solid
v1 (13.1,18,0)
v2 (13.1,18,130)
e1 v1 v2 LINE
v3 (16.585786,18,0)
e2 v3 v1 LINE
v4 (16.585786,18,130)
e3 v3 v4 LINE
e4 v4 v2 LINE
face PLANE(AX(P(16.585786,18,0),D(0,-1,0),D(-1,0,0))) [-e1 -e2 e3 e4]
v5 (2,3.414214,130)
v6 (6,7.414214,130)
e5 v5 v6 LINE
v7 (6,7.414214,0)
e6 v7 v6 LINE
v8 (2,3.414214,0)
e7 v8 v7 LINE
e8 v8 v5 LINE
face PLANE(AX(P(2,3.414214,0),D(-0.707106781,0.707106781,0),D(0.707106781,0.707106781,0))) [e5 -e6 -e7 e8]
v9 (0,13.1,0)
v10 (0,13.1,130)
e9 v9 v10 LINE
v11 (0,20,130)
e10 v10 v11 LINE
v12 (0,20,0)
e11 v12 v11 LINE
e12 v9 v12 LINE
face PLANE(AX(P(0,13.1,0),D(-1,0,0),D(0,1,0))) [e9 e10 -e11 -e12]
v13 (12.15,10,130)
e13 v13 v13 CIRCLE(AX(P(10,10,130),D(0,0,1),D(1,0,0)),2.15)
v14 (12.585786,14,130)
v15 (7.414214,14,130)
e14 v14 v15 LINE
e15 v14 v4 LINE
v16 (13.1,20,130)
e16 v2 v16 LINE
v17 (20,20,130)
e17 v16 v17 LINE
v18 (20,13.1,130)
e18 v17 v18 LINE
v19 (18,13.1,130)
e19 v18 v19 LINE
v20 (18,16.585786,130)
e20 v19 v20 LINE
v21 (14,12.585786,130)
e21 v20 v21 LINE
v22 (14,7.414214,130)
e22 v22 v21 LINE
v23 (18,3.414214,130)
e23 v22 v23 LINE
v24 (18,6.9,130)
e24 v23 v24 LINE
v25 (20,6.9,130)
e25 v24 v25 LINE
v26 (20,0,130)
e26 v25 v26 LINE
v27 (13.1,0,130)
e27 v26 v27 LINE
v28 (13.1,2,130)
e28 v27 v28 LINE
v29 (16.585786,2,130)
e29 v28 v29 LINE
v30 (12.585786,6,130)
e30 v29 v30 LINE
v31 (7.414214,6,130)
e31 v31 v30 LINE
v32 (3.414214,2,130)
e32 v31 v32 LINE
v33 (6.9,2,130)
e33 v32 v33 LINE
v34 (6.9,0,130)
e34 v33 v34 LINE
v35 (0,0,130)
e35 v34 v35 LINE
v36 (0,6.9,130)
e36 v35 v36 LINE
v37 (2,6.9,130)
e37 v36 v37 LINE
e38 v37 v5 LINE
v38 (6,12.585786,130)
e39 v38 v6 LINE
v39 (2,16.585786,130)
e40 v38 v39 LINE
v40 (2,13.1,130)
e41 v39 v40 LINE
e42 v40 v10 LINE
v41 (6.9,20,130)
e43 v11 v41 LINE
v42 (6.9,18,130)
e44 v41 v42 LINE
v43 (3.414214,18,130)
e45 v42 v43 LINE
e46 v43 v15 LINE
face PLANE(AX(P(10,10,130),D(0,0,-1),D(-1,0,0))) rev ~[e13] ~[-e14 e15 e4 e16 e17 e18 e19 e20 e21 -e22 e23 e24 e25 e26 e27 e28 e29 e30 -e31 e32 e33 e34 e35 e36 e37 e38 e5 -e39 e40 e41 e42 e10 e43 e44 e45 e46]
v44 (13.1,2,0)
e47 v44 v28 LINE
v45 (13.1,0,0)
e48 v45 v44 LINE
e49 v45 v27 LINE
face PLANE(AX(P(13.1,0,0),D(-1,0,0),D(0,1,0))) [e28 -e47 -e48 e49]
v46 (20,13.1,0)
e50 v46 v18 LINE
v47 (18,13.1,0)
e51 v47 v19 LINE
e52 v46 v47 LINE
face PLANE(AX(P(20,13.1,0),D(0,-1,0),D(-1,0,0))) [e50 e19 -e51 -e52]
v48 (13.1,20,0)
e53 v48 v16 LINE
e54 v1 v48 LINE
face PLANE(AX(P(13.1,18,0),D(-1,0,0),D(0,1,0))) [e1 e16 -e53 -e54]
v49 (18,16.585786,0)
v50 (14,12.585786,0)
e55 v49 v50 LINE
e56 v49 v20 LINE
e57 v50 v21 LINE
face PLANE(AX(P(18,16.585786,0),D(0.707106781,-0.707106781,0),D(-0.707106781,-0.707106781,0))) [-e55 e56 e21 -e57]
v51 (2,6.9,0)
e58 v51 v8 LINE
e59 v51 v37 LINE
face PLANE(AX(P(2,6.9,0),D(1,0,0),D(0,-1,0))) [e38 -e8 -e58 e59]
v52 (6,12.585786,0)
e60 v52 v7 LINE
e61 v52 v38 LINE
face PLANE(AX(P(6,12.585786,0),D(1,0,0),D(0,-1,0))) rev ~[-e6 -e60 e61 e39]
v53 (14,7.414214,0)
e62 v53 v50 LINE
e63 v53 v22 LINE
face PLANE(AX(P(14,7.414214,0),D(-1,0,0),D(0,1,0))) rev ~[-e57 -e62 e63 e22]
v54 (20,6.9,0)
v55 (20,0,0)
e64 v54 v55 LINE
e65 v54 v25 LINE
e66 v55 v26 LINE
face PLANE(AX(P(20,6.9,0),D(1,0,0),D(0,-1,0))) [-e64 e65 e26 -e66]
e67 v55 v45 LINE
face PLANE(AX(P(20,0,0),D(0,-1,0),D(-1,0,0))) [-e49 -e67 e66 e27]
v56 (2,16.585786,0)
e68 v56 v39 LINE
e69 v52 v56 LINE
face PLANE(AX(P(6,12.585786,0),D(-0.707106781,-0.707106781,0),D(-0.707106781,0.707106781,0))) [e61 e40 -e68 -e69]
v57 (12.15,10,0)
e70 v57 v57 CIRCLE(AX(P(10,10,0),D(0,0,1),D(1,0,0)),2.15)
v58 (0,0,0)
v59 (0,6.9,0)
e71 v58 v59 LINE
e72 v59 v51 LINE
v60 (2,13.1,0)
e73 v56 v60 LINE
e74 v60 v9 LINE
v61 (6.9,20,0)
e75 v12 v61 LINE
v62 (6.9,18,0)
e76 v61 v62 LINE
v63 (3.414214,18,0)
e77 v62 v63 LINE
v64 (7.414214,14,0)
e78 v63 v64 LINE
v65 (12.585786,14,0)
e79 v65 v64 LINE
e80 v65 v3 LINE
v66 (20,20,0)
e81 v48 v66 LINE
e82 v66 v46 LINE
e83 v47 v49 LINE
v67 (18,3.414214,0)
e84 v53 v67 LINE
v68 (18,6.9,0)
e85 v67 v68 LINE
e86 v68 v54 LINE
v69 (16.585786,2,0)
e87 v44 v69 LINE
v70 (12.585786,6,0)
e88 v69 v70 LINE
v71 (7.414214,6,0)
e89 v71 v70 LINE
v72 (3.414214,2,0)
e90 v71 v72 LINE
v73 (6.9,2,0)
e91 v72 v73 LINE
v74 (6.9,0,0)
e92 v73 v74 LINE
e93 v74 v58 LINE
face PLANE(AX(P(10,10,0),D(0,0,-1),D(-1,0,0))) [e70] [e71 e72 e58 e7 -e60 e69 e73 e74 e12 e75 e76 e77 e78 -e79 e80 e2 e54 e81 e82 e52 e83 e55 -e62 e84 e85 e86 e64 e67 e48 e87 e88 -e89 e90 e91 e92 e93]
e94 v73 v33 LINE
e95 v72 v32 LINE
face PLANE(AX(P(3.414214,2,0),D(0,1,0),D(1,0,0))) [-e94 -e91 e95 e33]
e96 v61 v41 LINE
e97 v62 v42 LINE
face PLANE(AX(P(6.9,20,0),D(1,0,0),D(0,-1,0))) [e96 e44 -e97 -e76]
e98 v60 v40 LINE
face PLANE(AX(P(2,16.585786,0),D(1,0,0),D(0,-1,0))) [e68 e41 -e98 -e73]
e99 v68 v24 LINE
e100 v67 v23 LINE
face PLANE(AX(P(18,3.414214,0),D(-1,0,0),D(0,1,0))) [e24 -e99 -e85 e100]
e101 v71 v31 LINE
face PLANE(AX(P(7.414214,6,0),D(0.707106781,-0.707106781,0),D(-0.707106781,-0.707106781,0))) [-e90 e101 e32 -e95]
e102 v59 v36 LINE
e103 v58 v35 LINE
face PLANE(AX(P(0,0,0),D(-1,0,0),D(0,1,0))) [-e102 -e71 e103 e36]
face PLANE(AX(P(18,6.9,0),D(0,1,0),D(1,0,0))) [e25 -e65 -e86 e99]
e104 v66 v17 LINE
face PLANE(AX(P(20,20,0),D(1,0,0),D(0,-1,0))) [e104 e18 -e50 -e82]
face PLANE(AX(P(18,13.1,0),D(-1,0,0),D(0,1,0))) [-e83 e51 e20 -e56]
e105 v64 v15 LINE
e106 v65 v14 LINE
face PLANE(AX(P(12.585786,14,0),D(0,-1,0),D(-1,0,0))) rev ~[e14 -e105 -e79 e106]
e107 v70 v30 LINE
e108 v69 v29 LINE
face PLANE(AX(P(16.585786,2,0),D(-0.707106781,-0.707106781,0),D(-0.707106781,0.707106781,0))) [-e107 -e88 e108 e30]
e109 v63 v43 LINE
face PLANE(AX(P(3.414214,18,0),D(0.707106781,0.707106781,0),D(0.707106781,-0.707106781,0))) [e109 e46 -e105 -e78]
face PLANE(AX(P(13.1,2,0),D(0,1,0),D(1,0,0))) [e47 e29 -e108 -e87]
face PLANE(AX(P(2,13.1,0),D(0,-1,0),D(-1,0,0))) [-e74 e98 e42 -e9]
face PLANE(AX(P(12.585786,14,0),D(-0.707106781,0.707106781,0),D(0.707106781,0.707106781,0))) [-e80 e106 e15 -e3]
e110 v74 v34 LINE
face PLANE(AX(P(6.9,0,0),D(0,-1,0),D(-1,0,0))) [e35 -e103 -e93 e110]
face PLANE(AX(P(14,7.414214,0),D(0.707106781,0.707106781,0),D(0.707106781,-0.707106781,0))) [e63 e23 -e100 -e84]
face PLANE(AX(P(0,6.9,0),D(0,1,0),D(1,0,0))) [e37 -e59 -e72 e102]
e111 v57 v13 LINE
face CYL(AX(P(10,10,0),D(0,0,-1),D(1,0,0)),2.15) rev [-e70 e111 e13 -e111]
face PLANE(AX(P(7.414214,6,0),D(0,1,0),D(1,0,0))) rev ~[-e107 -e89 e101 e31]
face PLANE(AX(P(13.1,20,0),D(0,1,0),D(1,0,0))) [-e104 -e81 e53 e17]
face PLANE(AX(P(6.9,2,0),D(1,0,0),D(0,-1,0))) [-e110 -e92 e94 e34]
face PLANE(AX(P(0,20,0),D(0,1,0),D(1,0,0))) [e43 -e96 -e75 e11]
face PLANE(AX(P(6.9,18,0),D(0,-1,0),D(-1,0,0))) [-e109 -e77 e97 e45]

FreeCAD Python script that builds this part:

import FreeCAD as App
import Part
import Sketcher
from FreeCAD import Vector
Q = App.Units.Quantity

doc = App.newDocument("Part")
body = doc.addObject("PartDesign::Body", "Body")

# Sketch on XY plane
sketch1 = doc.addObject("Sketcher::SketchObject", "Sketch")
body.addObject(sketch1)
sketch1.AttachmentSupport = (doc.XY_Plane, [""])
sketch1.MapMode = "FlatFace"
sketch1.addGeometry([
    Part.LineSegment(Vector(18, 13.1, 0), Vector(20, 13.1, 0)),  # 0
    Part.LineSegment(Vector(20, 13.1, 0), Vector(20, 20, 0)),  # 1
    Part.LineSegment(Vector(20, 20, 0), Vector(13.1, 20, 0)),  # 2
    Part.LineSegment(Vector(13.1, 20, 0), Vector(13.1, 18, 0)),  # 3
    Part.LineSegment(Vector(13.1, 18, 0), Vector(16.585786, 18, 0)),  # 4
    Part.LineSegment(Vector(16.585786, 18, 0), Vector(12.585786, 14, 0)),  # 5
    Part.LineSegment(Vector(12.585786, 14, 0), Vector(7.414214, 14, 0)),  # 6
    Part.LineSegment(Vector(7.414214, 14, 0), Vector(3.414214, 18, 0)),  # 7
    Part.LineSegment(Vector(3.414214, 18, 0), Vector(6.9, 18, 0)),  # 8
    Part.LineSegment(Vector(6.9, 18, 0), Vector(6.9, 20, 0)),  # 9
    Part.LineSegment(Vector(6.9, 20, 0), Vector(0, 20, 0)),  # 10
    Part.LineSegment(Vector(0, 20, 0), Vector(0, 13.1, 0)),  # 11
    Part.LineSegment(Vector(0, 13.1, 0), Vector(2, 13.1, 0)),  # 12
    Part.LineSegment(Vector(2, 13.1, 0), Vector(2, 16.585786, 0)),  # 13
    Part.LineSegment(Vector(2, 16.585786, 0), Vector(6, 12.585786, 0)),  # 14
    Part.LineSegment(Vector(6, 12.585786, 0), Vector(6, 7.414214, 0)),  # 15
    Part.LineSegment(Vector(6, 7.414214, 0), Vector(2, 3.414214, 0)),  # 16
    Part.LineSegment(Vector(2, 3.414214, 0), Vector(2, 6.9, 0)),  # 17
    Part.LineSegment(Vector(2, 6.9, 0), Vector(0, 6.9, 0)),  # 18
    Part.LineSegment(Vector(0, 6.9, 0), Vector(0, 0, 0)),  # 19
    Part.LineSegment(Vector(0, 0, 0), Vector(6.9, 0, 0)),  # 20
    Part.LineSegment(Vector(6.9, 0, 0), Vector(6.9, 2, 0)),  # 21
    Part.LineSegment(Vector(6.9, 2, 0), Vector(3.414214, 2, 0)),  # 22
    Part.LineSegment(Vector(3.414214, 2, 0), Vector(7.414214, 6, 0)),  # 23
    Part.LineSegment(Vector(7.414214, 6, 0), Vector(12.585786, 6, 0)),  # 24
    Part.LineSegment(Vector(12.585786, 6, 0), Vector(16.585786, 2, 0)),  # 25
    Part.LineSegment(Vector(16.585786, 2, 0), Vector(13.1, 2, 0)),  # 26
    Part.LineSegment(Vector(13.1, 2, 0), Vector(13.1, 0, 0)),  # 27
    Part.LineSegment(Vector(13.1, 0, 0), Vector(20, 0, 0)),  # 28
    Part.LineSegment(Vector(20, 0, 0), Vector(20, 6.9, 0)),  # 29
    Part.LineSegment(Vector(20, 6.9, 0), Vector(18, 6.9, 0)),  # 30
    Part.LineSegment(Vector(18, 6.9, 0), Vector(18, 3.414214, 0)),  # 31
    Part.LineSegment(Vector(18, 3.414214, 0), Vector(14, 7.414214, 0)),  # 32
    Part.LineSegment(Vector(14, 7.414214, 0), Vector(14, 12.585786, 0)),  # 33
    Part.LineSegment(Vector(14, 12.585786, 0), Vector(18, 16.585786, 0)),  # 34
    Part.LineSegment(Vector(18, 16.585786, 0), Vector(18, 13.1, 0)),  # 35
    Part.Circle(Vector(10, 10, 0), Vector(0, 0, 1), 2.15),  # 36
], False)
sketch1.addConstraint([
    Sketcher.Constraint("Coincident", 0, 2, 1, 1),
    Sketcher.Constraint("Coincident", 1, 2, 2, 1),
    Sketcher.Constraint("Coincident", 2, 2, 3, 1),
    Sketcher.Constraint("Coincident", 3, 2, 4, 1),
    Sketcher.Constraint("Coincident", 4, 2, 5, 1),
    Sketcher.Constraint("Coincident", 5, 2, 6, 1),
    Sketcher.Constraint("Coincident", 6, 2, 7, 1),
    Sketcher.Constraint("Coincident", 7, 2, 8, 1),
    Sketcher.Constraint("Coincident", 8, 2, 9, 1),
    Sketcher.Constraint("Coincident", 9, 2, 10, 1),
    Sketcher.Constraint("Coincident", 10, 2, 11, 1),
    Sketcher.Constraint("Coincident", 11, 2, 12, 1),
    Sketcher.Constraint("Coincident", 12, 2, 13, 1),
    Sketcher.Constraint("Coincident", 13, 2, 14, 1),
    Sketcher.Constraint("Coincident", 14, 2, 15, 1),
    Sketcher.Constraint("Coincident", 15, 2, 16, 1),
    Sketcher.Constraint("Coincident", 16, 2, 17, 1),
    Sketcher.Constraint("Coincident", 17, 2, 18, 1),
    Sketcher.Constraint("Coincident", 18, 2, 19, 1),
    Sketcher.Constraint("Coincident", 19, 2, 20, 1),
    Sketcher.Constraint("Coincident", 20, 2, 21, 1),
    Sketcher.Constraint("Coincident", 21, 2, 22, 1),
    Sketcher.Constraint("Coincident", 22, 2, 23, 1),
    Sketcher.Constraint("Coincident", 23, 2, 24, 1),
    Sketcher.Constraint("Coincident", 24, 2, 25, 1),
    Sketcher.Constraint("Coincident", 25, 2, 26, 1),
    Sketcher.Constraint("Coincident", 26, 2, 27, 1),
    Sketcher.Constraint("Coincident", 27, 2, 28, 1),
    Sketcher.Constraint("Coincident", 28, 2, 29, 1),
    Sketcher.Constraint("Coincident", 29, 2, 30, 1),
    Sketcher.Constraint("Coincident", 30, 2, 31, 1),
    Sketcher.Constraint("Coincident", 31, 2, 32, 1),
    Sketcher.Constraint("Coincident", 32, 2, 33, 1),
    Sketcher.Constraint("Coincident", 33, 2, 34, 1),
    Sketcher.Constraint("Coincident", 34, 2, 35, 1),
    Sketcher.Constraint("Coincident", 35, 2, 0, 1),
    Sketcher.Constraint("Horizontal", 0),
    Sketcher.Constraint("Vertical", 1),
    Sketcher.Constraint("Horizontal", 2),
    Sketcher.Constraint("Vertical", 3),
    Sketcher.Constraint("Horizontal", 4),
    Sketcher.Constraint("Horizontal", 6),
    Sketcher.Constraint("Horizontal", 8),
    Sketcher.Constraint("Vertical", 9),
    Sketcher.Constraint("Horizontal", 10),
    Sketcher.Constraint("Vertical", 11),
    Sketcher.Constraint("Horizontal", 12),
    Sketcher.Constraint("Vertical", 13),
    Sketcher.Constraint("Vertical", 15),
    Sketcher.Constraint("Vertical", 17),
    Sketcher.Constraint("Horizontal", 18),
    Sketcher.Constraint("Vertical", 19),
    Sketcher.Constraint("Horizontal", 20),
    Sketcher.Constraint("Vertical", 21),
    Sketcher.Constraint("Horizontal", 22),
    Sketcher.Constraint("Horizontal", 24),
    Sketcher.Constraint("Horizontal", 26),
    Sketcher.Constraint("Vertical", 27),
    Sketcher.Constraint("Horizontal", 28),
    Sketcher.Constraint("Vertical", 29),
    Sketcher.Constraint("Horizontal", 30),
    Sketcher.Constraint("Vertical", 31),
    Sketcher.Constraint("Vertical", 33),
    Sketcher.Constraint("Vertical", 35),
    Sketcher.Constraint("Coincident", 19, 2, -1, 1),
    Sketcher.Constraint("PointOnObject", 10, 2, -2),
    Sketcher.Constraint("PointOnObject", 27, 2, -1),
    Sketcher.Constraint("Perpendicular", 5, 7),
    Sketcher.Constraint("Parallel", 7, 14),
    Sketcher.Constraint("Perpendicular", 14, 16),
    Sketcher.Constraint("Parallel", 16, 23),
    Sketcher.Constraint("Perpendicular", 23, 25),
    Sketcher.Constraint("Parallel", 25, 32),
    Sketcher.Constraint("Perpendicular", 32, 34),
    Sketcher.Constraint("Horizontal", 4, 2, 7, 2),
    Sketcher.Constraint("Horizontal", 2, 2, 9, 2),
    Sketcher.Constraint("Horizontal", 0, 2, 11, 2),
    Sketcher.Constraint("Horizontal", 22, 2, 25, 2),
    Sketcher.Constraint("Horizontal", 18, 2, 29, 2),
    Sketcher.Constraint("Horizontal", 16, 2, 31, 2),
    Sketcher.Constraint("Horizontal", 15, 2, 32, 2),
    Sketcher.Constraint("Horizontal", 14, 2, 33, 2),
    Sketcher.Constraint("Horizontal", 13, 2, 34, 2),
    Sketcher.Constraint("Vertical", 13, 2, 16, 2),
    Sketcher.Constraint("Vertical", 9, 2, 20, 2),
    Sketcher.Constraint("Vertical", 7, 2, 22, 2),
    Sketcher.Constraint("Vertical", 6, 2, 23, 2),
    Sketcher.Constraint("Vertical", 5, 2, 24, 2),
    Sketcher.Constraint("Vertical", 4, 2, 25, 2),
    Sketcher.Constraint("Vertical", 3, 2, 26, 2),
    Sketcher.Constraint("Vertical", 1, 2, 28, 2),
    Sketcher.Constraint("Equal", 4, 8),
    Sketcher.Constraint("Equal", 2, 10),
    Sketcher.Constraint("Equal", 0, 12),
    Sketcher.Constraint("Equal", 28, 1),
    Sketcher.Constraint("Equal", 30, 3),
    Sketcher.Constraint("Equal", 26, 13),
    Sketcher.Constraint("Equal", 24, 15),
    Sketcher.Constraint("Equal", 13, 17),
    Sketcher.Constraint("Equal", 11, 19),
    Sketcher.Constraint("Equal", 9, 21),
    Sketcher.Constraint("Equal", 7, 14),
    Sketcher.Constraint("Diameter", 36, Q("4.3 mm")),
    Sketcher.Constraint("DistanceX", 0, 1, 0, 2, Q("2 mm")),
    Sketcher.Constraint("DistanceX", 2, 2, 2, 1, Q("6.9 mm")),
    Sketcher.Constraint("DistanceX", -1, 1, 36, 3, Q("10 mm")),
    Sketcher.Constraint("DistanceY", -1, 1, 36, 3, Q("10 mm")),
    Sketcher.Constraint("DistanceX", -1, 1, 0, 2, Q("20 mm")),
    Sketcher.Constraint("DistanceY", -1, 1, 5, 2, Q("14 mm")),
    Sketcher.Constraint("DistanceX", 4, 1, 4, 2, Q("3.485786 mm")),
])
pad1 = doc.addObject("PartDesign::Pad", "Pad")
body.addObject(pad1)
pad1.Profile = sketch1
pad1.Length = 130

doc.recompute()
